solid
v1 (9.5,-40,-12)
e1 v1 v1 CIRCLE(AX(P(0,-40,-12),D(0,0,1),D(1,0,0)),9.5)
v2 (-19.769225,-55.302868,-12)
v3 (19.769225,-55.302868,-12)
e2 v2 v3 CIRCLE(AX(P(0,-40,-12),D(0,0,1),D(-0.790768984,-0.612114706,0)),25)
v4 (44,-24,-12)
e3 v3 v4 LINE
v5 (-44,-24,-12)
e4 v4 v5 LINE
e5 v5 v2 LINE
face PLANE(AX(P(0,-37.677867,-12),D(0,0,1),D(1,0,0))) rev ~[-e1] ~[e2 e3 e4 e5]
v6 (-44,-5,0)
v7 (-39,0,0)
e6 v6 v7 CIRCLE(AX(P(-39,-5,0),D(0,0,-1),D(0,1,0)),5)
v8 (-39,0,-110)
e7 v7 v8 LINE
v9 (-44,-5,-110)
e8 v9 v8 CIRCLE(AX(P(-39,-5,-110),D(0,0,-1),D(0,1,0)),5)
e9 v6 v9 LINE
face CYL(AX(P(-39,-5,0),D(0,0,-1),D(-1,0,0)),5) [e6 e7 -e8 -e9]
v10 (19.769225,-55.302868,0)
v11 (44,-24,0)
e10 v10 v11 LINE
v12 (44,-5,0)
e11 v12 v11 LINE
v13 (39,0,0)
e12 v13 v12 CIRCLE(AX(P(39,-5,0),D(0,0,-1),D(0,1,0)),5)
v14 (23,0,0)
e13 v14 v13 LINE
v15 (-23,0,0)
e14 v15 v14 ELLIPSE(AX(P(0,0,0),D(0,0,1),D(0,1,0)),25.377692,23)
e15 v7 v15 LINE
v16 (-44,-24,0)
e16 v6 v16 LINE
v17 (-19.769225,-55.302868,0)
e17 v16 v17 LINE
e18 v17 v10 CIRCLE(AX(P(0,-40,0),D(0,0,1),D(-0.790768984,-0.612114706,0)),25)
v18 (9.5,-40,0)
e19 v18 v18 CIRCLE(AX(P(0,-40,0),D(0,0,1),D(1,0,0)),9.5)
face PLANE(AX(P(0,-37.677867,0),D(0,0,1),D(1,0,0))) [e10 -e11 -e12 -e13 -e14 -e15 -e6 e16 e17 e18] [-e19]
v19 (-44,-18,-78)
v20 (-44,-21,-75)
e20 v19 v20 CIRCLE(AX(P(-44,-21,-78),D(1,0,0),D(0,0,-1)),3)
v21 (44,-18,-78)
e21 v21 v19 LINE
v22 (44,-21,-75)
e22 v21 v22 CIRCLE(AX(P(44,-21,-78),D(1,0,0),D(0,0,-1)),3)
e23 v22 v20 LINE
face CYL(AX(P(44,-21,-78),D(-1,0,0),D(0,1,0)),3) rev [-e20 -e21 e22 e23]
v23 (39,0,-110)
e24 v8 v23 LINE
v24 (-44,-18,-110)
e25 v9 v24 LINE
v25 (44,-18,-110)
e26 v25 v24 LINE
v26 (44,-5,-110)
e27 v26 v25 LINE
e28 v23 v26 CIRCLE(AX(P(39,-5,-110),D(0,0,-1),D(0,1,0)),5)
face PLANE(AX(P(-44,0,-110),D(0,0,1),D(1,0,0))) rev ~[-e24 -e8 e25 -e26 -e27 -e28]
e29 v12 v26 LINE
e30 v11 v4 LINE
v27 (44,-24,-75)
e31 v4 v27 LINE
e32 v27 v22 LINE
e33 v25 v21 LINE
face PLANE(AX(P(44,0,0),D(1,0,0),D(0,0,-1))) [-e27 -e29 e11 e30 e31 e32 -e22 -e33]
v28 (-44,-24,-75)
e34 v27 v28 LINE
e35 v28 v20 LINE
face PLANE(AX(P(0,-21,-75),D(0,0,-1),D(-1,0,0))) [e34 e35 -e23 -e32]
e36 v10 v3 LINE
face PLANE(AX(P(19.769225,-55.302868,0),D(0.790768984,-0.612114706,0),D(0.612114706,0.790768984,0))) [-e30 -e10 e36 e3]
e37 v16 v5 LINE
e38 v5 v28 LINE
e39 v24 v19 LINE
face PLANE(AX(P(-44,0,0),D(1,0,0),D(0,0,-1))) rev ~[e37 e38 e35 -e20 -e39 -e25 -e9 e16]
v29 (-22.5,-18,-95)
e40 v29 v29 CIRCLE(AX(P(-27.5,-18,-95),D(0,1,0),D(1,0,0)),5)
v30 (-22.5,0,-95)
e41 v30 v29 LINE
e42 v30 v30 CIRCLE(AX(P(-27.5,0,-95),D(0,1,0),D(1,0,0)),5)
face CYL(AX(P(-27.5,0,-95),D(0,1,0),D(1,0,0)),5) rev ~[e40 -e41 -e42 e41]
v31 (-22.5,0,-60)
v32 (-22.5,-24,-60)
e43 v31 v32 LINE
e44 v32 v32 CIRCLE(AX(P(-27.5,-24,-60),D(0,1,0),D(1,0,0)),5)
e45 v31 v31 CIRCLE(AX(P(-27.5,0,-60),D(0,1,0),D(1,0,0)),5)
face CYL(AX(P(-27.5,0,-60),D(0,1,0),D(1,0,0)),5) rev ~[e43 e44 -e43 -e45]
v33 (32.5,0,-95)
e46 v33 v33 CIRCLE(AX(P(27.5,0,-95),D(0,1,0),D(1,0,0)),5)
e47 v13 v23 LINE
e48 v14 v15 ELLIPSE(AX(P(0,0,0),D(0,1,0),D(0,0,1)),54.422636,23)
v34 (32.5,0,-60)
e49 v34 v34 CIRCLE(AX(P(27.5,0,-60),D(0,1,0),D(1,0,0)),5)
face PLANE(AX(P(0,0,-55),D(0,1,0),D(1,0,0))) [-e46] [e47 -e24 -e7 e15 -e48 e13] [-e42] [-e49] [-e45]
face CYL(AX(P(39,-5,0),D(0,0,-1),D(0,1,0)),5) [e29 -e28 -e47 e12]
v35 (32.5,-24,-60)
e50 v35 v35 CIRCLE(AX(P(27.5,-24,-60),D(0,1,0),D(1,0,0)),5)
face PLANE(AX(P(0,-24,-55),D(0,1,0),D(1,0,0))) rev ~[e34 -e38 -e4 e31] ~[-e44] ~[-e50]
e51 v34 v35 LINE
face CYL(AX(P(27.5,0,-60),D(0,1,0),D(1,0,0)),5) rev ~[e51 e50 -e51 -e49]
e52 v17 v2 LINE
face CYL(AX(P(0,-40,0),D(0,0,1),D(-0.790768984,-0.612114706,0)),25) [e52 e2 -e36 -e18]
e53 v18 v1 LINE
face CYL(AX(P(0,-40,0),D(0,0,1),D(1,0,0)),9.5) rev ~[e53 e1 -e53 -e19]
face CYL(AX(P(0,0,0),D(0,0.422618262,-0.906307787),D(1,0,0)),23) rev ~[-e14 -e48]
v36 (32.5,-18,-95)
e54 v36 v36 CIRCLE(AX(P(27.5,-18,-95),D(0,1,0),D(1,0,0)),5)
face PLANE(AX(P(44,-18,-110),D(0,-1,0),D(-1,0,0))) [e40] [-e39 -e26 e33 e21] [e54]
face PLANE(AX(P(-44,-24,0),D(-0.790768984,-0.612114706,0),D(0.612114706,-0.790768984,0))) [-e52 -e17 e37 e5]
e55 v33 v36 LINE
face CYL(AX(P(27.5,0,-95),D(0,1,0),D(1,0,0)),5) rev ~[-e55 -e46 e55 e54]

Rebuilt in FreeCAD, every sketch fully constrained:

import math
import FreeCAD as App
import Part
import Sketcher

V = App.Vector


def edges_at(feature, points):
    """Names of the edges that pass closest to the given points."""
    edges = feature.Shape.Edges
    near = lambda p: min(range(len(edges)), key=lambda i: edges[i].distToShape(Part.Vertex(*p))[0])
    return sorted({f"Edge{near(p) + 1}" for p in points})


def add_polygon(sketch, points):
    """Adds a closed chain of lines whose ends are joined by coincident constraints."""
    first, n = sketch.GeometryCount, len(points)
    for a, b in zip(points, points[1:] + points[:1]):
        sketch.addGeometry(Part.LineSegment(App.Vector(*a, 0), App.Vector(*b, 0)), False)
    for i in range(n):
        sketch.addConstraint(Sketcher.Constraint("Coincident", first + i, 2, first + (i + 1) % n, 1))

doc = App.newDocument("Part")
body = doc.addObject("PartDesign::Body", "Body")

# Sketch on XZ plane
sketch1 = body.newObject("Sketcher::SketchObject", "Sketch")
sketch1.AttachmentSupport = (doc.getObject("XZ_Plane"), [""])
sketch1.MapMode = "FlatFace"
add_polygon(sketch1, [(-44, -110), (-44, 0), (44, 0), (44, -110)])  # lines 0-3
sketch1.addGeometry(Part.Circle(V(-28, -60, 0), V(0, 0, 1), 5), False)  # 4
sketch1.addGeometry(Part.Circle(V(28, -60, 0), V(0, 0, 1), 5), False)  # 5
sketch1.addGeometry(Part.Circle(V(-28, -95, 0), V(0, 0, 1), 5), False)  # 6
sketch1.addGeometry(Part.Circle(V(28, -95, 0), V(0, 0, 1), 5), False)  # 7
sketch1.addConstraint(Sketcher.Constraint("Vertical", 0))
sketch1.addConstraint(Sketcher.Constraint("Horizontal", 1))
sketch1.addConstraint(Sketcher.Constraint("Vertical", 2))
sketch1.addConstraint(Sketcher.Constraint("Horizontal", 3))
sketch1.addConstraint(Sketcher.Constraint("Equal", 4, 5))
sketch1.addConstraint(Sketcher.Constraint("Equal", 5, 6))
sketch1.addConstraint(Sketcher.Constraint("Equal", 6, 7))
sketch1.addConstraint(Sketcher.Constraint("Symmetric", 0, 2, 1, 2, -1, 1))
sketch1.addConstraint(Sketcher.Constraint("Symmetric", 4, 3, 5, 3, -2))
sketch1.addConstraint(Sketcher.Constraint("Symmetric", 6, 3, 7, 3, -2))
sketch1.addConstraint(Sketcher.Constraint("Vertical", 4, 3, 6, 3))
sketch1.addConstraint(Sketcher.Constraint("Diameter", 4, 10.0))
sketch1.addConstraint(Sketcher.Constraint("DistanceX", 1, 1, 1, 2, 88.0))
sketch1.addConstraint(Sketcher.Constraint("DistanceY", 0, 1, 0, 2, 110.0))
sketch1.addConstraint(Sketcher.Constraint("DistanceY", 4, 3, -1, 1, 60.0))
sketch1.addConstraint(Sketcher.Constraint("DistanceY", 6, 3, -1, 1, 95.0))
sketch1.addConstraint(Sketcher.Constraint("DistanceX", 4, 3, 5, 3, 55.0))
pad1 = body.newObject("PartDesign::Pad", "Pad")
pad1.Profile = sketch1
pad1.Length = 24

# Sketch on XY plane
sketch2 = body.newObject("Sketcher::SketchObject", "Sketch001")
sketch2.AttachmentSupport = (doc.getObject("XY_Plane"), [""])
sketch2.MapMode = "FlatFace"
sketch2.addGeometry(Part.LineSegment(V(-44, -24, 0), V(-20, -55, 0)), False)
sketch2.addGeometry(Part.ArcOfCircle(Part.Circle(V(0, -40, 0), V(0, 0, 1), 25), math.radians(-142), math.radians(-38)), False)
sketch2.addGeometry(Part.LineSegment(V(20, -55, 0), V(44, -24, 0)), False)
sketch2.addGeometry(Part.LineSegment(V(44, -24, 0), V(-44, -24, 0)), False)
sketch2.addGeometry(Part.Circle(V(0, -40, 0), V(0, 0, 1), 10), False)
sketch2.addConstraint(Sketcher.Constraint("Tangent", 0, 2, 1, 1))
sketch2.addConstraint(Sketcher.Constraint("Tangent", 1, 2, 2, 1))
sketch2.addConstraint(Sketcher.Constraint("Coincident", 2, 2, 3, 1))
sketch2.addConstraint(Sketcher.Constraint("Coincident", 3, 2, 0, 1))
sketch2.addConstraint(Sketcher.Constraint("Horizontal", 3))
sketch2.addConstraint(Sketcher.Constraint("Coincident", 4, 3, 1, 3))
sketch2.addConstraint(Sketcher.Constraint("Symmetric", 0, 2, 1, 2, -2))
sketch2.addConstraint(Sketcher.Constraint("Diameter", 4, 19.0))
sketch2.addConstraint(Sketcher.Constraint("Radius", 1, 25.0))
sketch2.addConstraint(Sketcher.Constraint("DistanceX", 3, 2, 3, 1, 88.0))
sketch2.addConstraint(Sketcher.Constraint("DistanceY", 1, 3, -1, 1, 40.0))
sketch2.addConstraint(Sketcher.Constraint("DistanceY", 2, 2, -1, 1, 24.0))
pad2 = body.newObject("PartDesign::Pad", "Pad001")
pad2.Profile = sketch2
pad2.Length = 12
pad2.Reversed = True
doc.recompute()

fillet = body.newObject("PartDesign::Fillet", "Fillet")
fillet.Base = (pad2, edges_at(pad2, [(-44, 0, -55), (44, 0, -55)]))
fillet.Radius = 5

# Sketch on XY plane
sketch3 = body.newObject("Sketcher::SketchObject", "Sketch002")
sketch3.AttachmentSupport = (doc.getObject("XY_Plane"), [""])
sketch3.MapMode = "FlatFace"
sketch3.AttachmentOffset = App.Placement(V(0, 0, -110), App.Rotation())
add_polygon(sketch3, [(44, -18), (44, -24), (-44, -24), (-44, -18)])  # lines 0-3
sketch3.addConstraint(Sketcher.Constraint("Vertical", 0))
sketch3.addConstraint(Sketcher.Constraint("Horizontal", 1))
sketch3.addConstraint(Sketcher.Constraint("Vertical", 2))
sketch3.addConstraint(Sketcher.Constraint("Horizontal", 3))
sketch3.addConstraint(Sketcher.Constraint("DistanceX", 1, 2, 1, 1, 88.0))
sketch3.addConstraint(Sketcher.Constraint("DistanceY", 0, 2, 0, 1, 6.0))
sketch3.addConstraint(Sketcher.Constraint("DistanceX", -1, 1, 0, 2, 44.0))
sketch3.addConstraint(Sketcher.Constraint("DistanceY", 0, 2, -1, 1, 24.0))
pocket1 = body.newObject("PartDesign::Pocket", "Pocket")
pocket1.Profile = sketch3
pocket1.Length = 35
pocket1.Reversed = True
doc.recompute()

fillet2 = body.newObject("PartDesign::Fillet", "Fillet001")
fillet2.Base = (pocket1, edges_at(pocket1, [(0, -18, -75)]))
fillet2.Radius = 3

# Sketch on an angled plane
sketch4 = body.newObject("Sketcher::SketchObject", "Sketch003")
sketch4.Placement = App.Placement(V(0, 0, 0), App.Rotation(V(1, 0, 0), V(0, -0.906307787, -0.422618262), V(0, 0.422618262, -0.906307787), "ZXY"))
sketch4.addGeometry(Part.Circle(V(0, 0, 0), V(0, 0, 1), 23), False)
sketch4.addConstraint(Sketcher.Constraint("Coincident", 0, 3, -1, 1))
sketch4.addConstraint(Sketcher.Constraint("Diameter", 0, 46.0))
pocket2 = body.newObject("PartDesign::Pocket", "Pocket001")
pocket2.Profile = sketch4
pocket2.Type = "ThroughAll"
pocket2.Midplane = True

doc.recompute()
